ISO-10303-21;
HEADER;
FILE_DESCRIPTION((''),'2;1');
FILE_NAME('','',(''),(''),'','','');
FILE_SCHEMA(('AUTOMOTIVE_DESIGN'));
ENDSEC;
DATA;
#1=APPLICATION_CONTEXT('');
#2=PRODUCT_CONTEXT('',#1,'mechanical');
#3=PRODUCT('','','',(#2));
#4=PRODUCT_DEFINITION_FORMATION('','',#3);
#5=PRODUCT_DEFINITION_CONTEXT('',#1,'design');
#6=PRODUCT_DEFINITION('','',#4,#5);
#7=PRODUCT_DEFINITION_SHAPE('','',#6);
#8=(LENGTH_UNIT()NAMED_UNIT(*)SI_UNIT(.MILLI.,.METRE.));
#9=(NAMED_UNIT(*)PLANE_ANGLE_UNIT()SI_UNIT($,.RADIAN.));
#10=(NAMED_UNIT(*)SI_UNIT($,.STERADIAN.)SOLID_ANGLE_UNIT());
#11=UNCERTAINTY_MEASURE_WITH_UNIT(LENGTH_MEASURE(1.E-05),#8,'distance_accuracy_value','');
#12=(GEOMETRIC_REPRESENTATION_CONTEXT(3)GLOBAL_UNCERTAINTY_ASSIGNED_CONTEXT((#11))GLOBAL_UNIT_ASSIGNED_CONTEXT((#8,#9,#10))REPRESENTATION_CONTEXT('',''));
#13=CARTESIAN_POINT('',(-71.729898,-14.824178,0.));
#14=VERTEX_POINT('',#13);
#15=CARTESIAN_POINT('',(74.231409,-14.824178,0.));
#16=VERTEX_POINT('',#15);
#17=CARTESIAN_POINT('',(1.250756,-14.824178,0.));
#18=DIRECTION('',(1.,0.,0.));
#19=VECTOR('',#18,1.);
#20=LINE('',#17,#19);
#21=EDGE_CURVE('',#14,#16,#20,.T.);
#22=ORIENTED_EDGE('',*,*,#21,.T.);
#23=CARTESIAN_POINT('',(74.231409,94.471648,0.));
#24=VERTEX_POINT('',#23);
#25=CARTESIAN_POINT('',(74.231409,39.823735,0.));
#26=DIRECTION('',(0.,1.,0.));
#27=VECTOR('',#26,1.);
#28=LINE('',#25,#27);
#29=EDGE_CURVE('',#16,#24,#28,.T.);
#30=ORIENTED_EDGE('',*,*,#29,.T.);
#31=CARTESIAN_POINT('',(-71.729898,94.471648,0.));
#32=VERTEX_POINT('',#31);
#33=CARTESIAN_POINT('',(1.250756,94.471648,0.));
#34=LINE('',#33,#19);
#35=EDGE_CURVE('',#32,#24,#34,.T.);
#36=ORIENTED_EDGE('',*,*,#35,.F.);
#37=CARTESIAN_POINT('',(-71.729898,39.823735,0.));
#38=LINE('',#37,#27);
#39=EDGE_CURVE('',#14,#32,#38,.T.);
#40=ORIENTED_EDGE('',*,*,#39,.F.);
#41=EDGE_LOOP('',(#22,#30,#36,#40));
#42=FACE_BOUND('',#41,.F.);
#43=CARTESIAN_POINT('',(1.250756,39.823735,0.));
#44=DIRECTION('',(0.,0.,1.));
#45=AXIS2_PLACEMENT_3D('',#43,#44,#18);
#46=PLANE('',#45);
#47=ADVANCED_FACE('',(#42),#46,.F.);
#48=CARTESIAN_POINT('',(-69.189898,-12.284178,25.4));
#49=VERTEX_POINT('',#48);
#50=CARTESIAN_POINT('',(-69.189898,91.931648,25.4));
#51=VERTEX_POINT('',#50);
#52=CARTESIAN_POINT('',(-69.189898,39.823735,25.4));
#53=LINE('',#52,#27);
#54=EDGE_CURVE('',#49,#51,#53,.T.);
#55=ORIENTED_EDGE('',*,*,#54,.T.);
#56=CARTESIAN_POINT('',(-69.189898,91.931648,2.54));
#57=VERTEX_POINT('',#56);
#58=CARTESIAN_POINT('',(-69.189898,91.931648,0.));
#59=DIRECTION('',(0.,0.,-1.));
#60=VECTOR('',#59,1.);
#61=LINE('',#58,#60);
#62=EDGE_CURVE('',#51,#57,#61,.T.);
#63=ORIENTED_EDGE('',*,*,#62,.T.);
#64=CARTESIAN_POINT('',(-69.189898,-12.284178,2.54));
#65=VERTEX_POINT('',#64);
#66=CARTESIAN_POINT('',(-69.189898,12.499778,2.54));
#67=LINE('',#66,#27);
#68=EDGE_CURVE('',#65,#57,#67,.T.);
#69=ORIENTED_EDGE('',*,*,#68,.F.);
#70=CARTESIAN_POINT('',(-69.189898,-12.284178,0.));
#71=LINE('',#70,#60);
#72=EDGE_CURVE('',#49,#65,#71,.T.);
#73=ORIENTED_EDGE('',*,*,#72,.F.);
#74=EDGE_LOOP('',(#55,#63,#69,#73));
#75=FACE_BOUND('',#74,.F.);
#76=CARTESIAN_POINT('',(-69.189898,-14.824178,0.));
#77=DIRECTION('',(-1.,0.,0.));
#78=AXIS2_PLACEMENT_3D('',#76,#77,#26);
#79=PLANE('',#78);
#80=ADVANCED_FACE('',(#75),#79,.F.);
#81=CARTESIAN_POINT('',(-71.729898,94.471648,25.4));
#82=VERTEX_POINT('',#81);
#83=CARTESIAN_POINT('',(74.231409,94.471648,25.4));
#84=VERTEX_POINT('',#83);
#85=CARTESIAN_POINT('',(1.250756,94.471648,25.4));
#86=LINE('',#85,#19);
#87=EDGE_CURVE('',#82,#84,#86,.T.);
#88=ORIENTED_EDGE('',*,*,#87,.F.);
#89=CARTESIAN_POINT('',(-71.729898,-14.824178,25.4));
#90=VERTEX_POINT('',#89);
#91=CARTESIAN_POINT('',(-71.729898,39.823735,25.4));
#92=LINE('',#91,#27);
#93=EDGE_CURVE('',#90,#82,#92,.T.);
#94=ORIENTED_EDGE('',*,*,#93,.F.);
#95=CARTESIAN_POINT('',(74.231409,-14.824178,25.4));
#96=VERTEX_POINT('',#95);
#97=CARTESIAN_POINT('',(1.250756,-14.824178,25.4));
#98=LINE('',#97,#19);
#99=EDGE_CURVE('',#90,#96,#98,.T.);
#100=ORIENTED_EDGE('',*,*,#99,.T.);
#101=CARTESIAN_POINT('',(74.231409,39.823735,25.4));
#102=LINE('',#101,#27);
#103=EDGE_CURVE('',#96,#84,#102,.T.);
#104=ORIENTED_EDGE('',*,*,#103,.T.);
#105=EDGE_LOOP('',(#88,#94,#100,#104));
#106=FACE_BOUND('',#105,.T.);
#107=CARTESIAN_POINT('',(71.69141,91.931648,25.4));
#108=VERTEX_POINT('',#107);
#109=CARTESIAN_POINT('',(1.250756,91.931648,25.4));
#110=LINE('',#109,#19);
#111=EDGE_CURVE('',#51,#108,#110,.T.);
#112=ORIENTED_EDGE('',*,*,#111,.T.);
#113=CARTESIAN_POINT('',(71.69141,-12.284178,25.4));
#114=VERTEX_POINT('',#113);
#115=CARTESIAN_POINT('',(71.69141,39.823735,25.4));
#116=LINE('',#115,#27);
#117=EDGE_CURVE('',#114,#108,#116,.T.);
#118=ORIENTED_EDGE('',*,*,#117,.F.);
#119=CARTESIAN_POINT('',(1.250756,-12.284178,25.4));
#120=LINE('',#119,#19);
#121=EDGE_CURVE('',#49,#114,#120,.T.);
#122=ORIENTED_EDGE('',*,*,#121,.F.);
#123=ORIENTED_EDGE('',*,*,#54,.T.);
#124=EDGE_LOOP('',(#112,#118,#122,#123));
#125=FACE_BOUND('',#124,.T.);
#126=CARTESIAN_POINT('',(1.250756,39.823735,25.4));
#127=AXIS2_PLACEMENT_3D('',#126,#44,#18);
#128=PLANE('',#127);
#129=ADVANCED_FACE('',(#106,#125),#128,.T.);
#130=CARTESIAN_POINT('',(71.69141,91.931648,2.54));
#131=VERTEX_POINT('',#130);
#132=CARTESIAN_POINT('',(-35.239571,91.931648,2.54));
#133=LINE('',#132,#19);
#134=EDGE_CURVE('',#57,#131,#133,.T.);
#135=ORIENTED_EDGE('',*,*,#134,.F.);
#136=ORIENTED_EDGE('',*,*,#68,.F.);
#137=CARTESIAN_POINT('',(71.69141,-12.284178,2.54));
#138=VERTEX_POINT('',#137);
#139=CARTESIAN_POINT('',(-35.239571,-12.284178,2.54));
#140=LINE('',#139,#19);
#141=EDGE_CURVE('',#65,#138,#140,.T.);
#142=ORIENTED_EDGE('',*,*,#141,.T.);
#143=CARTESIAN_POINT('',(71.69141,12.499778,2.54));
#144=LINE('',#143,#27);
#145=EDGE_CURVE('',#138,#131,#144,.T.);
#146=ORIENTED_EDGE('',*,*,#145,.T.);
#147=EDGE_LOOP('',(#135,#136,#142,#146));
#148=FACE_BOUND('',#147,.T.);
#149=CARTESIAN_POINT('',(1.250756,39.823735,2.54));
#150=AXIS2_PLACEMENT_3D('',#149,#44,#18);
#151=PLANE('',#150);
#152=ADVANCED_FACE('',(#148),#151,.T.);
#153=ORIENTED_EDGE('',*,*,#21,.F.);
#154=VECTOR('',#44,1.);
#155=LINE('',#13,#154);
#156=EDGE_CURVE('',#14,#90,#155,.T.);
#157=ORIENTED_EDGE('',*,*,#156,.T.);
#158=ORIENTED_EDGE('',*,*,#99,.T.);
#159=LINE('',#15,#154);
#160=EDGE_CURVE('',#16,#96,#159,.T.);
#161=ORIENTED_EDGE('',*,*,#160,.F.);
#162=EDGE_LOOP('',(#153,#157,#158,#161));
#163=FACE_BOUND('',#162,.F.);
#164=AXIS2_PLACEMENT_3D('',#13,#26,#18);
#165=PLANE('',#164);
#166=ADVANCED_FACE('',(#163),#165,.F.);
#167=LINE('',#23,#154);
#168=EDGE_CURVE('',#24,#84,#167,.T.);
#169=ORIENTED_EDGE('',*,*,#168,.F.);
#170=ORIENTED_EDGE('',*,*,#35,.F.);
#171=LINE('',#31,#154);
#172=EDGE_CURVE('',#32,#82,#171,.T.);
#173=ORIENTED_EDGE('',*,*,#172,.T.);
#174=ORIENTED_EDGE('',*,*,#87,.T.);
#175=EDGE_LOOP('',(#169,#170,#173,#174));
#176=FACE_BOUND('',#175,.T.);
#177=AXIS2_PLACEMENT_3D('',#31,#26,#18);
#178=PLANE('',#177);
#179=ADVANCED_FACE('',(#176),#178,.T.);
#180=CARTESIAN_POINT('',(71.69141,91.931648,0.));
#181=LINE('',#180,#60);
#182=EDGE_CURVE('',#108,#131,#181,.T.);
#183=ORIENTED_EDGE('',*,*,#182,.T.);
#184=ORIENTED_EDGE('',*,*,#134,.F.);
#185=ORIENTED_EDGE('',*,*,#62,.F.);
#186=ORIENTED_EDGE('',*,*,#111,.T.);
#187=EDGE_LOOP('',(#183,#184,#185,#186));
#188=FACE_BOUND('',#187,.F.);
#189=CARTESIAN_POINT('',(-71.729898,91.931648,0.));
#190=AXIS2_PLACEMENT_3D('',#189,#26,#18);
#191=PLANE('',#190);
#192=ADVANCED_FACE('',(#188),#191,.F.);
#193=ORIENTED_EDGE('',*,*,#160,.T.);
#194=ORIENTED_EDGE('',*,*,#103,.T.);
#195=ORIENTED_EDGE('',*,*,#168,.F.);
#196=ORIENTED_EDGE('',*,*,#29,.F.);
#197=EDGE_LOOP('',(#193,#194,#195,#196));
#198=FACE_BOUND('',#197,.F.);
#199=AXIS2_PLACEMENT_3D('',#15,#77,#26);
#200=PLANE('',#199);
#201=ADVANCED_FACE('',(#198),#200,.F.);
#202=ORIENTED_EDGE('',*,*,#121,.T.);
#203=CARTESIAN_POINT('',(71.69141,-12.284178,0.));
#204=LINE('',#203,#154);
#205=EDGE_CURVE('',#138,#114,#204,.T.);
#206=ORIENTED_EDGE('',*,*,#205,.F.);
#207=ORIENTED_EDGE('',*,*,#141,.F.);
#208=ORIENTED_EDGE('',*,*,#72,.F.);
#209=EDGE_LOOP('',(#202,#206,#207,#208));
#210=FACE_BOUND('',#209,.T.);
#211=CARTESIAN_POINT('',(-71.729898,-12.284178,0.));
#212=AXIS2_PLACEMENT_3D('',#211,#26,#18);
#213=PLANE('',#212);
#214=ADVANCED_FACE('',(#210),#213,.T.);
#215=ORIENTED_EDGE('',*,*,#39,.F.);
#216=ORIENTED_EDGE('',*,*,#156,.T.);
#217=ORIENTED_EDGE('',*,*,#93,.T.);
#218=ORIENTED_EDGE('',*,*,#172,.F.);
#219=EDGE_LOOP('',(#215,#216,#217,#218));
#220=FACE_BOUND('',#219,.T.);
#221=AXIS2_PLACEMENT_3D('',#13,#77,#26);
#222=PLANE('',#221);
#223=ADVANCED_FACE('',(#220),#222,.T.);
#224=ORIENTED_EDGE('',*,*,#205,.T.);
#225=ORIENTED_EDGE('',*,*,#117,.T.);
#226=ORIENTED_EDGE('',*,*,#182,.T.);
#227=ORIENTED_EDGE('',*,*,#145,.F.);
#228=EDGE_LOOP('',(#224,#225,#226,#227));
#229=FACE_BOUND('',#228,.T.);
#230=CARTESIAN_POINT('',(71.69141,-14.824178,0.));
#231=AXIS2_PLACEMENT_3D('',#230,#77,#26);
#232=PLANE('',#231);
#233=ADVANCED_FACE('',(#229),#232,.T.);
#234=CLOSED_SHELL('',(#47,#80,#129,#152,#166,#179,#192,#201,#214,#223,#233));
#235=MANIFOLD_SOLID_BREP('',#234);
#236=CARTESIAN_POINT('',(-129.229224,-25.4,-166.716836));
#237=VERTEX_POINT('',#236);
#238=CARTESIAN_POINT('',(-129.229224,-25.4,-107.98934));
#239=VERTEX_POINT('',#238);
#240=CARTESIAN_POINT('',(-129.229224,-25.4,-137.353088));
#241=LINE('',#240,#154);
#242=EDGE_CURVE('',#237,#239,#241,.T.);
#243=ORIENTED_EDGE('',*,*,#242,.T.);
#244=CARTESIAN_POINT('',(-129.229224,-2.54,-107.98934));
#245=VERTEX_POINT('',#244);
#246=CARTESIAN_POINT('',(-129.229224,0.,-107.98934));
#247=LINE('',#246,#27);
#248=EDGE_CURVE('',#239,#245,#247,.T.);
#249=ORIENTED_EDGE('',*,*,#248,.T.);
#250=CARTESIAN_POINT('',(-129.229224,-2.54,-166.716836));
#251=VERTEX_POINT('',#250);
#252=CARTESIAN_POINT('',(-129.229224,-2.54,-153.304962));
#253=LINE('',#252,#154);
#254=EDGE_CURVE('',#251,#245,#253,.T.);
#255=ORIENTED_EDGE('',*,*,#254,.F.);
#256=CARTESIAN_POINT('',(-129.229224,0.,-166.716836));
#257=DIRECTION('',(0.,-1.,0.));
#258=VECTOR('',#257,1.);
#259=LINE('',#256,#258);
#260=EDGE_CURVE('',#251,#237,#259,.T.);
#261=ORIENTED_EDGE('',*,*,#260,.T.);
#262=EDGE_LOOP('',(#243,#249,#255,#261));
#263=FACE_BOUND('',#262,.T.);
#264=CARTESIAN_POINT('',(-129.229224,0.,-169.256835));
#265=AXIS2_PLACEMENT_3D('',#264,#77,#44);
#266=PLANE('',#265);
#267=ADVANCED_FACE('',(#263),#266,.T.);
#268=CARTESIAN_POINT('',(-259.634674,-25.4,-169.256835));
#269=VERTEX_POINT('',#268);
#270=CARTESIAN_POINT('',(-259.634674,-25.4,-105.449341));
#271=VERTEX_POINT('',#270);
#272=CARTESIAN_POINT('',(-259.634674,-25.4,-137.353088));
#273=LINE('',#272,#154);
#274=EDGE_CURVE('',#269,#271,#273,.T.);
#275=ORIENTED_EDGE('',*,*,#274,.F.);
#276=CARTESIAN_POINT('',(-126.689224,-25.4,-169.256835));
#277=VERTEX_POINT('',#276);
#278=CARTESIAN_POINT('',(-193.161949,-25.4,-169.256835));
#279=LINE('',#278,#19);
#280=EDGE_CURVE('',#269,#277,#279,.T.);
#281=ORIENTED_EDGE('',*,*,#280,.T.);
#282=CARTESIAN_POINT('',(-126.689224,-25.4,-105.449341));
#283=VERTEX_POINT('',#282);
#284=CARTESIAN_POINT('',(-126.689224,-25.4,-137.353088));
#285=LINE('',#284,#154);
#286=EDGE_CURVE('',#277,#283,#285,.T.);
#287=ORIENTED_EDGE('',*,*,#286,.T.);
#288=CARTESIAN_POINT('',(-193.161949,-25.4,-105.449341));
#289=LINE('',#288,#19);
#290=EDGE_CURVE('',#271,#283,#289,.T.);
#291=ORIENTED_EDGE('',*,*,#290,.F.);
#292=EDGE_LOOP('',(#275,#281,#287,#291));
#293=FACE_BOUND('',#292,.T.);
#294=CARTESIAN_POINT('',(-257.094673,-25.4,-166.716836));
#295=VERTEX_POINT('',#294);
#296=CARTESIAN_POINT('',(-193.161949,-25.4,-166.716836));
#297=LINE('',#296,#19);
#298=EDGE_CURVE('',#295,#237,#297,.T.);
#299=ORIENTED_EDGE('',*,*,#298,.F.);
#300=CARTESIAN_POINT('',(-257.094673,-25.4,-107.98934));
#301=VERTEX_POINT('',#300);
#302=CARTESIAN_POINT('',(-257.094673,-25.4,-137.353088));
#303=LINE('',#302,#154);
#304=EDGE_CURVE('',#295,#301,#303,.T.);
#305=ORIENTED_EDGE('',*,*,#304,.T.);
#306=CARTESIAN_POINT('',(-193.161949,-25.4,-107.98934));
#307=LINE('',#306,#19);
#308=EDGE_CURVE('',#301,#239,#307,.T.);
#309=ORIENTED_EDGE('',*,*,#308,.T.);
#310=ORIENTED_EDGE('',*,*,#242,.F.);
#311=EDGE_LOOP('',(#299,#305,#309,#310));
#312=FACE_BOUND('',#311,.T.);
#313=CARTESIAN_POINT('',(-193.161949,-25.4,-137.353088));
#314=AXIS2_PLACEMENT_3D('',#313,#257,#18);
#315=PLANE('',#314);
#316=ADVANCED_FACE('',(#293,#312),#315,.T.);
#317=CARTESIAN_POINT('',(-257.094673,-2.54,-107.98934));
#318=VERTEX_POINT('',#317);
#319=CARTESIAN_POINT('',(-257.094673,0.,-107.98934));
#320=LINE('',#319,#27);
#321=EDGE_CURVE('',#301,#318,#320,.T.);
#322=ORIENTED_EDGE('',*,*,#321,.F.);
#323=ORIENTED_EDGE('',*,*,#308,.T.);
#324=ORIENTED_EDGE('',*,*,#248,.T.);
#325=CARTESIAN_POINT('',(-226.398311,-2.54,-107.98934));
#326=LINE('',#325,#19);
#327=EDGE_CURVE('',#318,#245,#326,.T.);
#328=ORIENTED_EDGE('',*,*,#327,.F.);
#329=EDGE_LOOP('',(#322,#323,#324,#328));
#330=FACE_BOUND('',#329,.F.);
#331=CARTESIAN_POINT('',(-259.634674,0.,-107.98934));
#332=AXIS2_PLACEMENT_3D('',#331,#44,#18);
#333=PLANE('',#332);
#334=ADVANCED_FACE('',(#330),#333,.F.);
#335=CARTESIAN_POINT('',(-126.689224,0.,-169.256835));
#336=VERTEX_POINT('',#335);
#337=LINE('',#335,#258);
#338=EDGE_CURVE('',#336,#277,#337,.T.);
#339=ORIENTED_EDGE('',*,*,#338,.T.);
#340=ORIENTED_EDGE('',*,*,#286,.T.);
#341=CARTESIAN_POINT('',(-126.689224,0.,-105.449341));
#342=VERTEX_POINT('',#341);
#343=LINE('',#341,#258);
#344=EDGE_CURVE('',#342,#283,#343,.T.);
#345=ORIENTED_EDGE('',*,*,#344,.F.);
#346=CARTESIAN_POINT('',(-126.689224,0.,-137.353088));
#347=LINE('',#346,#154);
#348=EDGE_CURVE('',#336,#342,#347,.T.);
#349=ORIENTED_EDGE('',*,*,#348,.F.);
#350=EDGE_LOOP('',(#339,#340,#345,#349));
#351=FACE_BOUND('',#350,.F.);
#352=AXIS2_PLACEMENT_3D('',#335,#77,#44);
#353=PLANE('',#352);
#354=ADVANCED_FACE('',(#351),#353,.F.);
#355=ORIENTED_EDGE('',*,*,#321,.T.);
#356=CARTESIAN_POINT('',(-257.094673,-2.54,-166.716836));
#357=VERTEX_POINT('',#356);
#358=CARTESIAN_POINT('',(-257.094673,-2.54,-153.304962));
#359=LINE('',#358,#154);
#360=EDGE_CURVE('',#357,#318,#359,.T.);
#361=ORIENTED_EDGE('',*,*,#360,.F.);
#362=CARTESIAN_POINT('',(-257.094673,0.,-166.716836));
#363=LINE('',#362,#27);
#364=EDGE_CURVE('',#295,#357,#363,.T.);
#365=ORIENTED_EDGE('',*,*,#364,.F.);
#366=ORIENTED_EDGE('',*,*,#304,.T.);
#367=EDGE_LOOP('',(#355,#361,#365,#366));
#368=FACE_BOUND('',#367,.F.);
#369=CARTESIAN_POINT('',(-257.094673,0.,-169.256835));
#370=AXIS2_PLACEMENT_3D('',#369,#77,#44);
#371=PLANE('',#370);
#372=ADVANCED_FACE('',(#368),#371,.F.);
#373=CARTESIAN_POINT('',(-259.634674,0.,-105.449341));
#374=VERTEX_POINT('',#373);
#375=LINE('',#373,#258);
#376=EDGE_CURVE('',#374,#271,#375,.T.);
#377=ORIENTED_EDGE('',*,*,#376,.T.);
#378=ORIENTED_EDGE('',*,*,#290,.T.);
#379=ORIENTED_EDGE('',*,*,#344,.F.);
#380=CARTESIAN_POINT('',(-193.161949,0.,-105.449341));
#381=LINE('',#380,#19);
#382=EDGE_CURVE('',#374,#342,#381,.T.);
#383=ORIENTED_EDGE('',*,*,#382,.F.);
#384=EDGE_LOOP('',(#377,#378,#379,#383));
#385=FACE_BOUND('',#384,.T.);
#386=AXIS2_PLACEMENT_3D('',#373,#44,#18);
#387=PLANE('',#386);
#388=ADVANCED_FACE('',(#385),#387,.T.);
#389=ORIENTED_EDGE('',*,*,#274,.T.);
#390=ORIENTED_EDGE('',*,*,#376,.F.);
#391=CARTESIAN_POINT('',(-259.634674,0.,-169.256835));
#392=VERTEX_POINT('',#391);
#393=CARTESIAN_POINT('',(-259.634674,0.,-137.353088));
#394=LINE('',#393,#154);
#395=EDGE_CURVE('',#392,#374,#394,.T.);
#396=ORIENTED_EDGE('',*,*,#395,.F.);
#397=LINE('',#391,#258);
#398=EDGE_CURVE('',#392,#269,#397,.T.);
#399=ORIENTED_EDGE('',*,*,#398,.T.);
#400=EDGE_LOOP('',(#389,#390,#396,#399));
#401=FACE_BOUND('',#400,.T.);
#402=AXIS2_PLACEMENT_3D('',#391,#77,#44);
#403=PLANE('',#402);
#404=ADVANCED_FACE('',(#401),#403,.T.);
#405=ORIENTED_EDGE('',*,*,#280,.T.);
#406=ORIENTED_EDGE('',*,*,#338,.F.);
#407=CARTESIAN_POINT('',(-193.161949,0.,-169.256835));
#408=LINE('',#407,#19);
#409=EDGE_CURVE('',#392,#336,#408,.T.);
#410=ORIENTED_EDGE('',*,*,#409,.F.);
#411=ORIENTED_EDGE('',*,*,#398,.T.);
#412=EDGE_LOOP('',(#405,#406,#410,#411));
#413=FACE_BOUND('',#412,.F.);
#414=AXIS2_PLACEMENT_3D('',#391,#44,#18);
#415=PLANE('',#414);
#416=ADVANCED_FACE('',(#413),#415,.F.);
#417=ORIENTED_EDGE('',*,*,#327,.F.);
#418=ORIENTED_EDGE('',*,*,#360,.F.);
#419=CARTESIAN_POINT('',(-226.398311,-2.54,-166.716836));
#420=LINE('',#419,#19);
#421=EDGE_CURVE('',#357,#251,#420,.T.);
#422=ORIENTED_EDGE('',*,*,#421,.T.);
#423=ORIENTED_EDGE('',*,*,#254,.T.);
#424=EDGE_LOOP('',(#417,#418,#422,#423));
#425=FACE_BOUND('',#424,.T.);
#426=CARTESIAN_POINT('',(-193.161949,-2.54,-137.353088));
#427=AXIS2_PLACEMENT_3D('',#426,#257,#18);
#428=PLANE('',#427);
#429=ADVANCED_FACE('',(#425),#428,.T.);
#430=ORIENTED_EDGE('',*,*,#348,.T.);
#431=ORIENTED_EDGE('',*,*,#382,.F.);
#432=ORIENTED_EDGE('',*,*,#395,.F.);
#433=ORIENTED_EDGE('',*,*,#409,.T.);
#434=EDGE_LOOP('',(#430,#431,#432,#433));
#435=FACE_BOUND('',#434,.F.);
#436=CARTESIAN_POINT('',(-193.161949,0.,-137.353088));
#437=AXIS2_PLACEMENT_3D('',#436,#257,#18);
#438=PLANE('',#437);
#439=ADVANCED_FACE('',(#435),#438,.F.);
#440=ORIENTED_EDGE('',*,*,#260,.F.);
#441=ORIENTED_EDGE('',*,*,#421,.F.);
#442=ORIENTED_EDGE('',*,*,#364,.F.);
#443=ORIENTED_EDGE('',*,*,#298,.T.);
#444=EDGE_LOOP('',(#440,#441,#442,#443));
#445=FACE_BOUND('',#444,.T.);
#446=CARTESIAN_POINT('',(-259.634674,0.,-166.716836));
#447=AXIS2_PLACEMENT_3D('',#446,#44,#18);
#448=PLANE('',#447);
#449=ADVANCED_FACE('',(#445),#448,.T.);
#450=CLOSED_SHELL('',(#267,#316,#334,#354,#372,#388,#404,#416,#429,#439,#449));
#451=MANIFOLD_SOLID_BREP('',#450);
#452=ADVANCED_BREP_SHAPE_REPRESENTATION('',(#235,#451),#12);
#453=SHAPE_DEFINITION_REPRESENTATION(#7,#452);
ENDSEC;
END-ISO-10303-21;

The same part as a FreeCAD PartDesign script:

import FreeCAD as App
import Part
import Sketcher
Q = App.Units.Quantity


def faces_at(feature, points):
    """Names of the faces that lie closest to the given points."""
    faces = feature.Shape.Faces
    near = lambda p: min(range(len(faces)), key=lambda i: faces[i].distToShape(Part.Vertex(*p))[0])
    return sorted({f"Face{near(p) + 1}" for p in points})

doc = App.newDocument("Part")
body = doc.addObject("PartDesign::Body", "Body")

# Sketch on XY plane
sketch1 = doc.addObject("Sketcher::SketchObject", "Sketch")
body.addObject(sketch1)
sketch1.AttachmentSupport = (doc.XY_Plane, [""])
sketch1.MapMode = "FlatFace"
sketch1.addGeometry([
    Part.LineSegment(App.Vector(-72, 94, 0), App.Vector(-72, -15, 0)),
    Part.LineSegment(App.Vector(-72, -15, 0), App.Vector(74, -15, 0)),
    Part.LineSegment(App.Vector(74, -15, 0), App.Vector(74, 94, 0)),
    Part.LineSegment(App.Vector(74, 94, 0), App.Vector(-72, 94, 0)),
], False)
sketch1.addConstraint([
    Sketcher.Constraint("Coincident", 0, 2, 1, 1),
    Sketcher.Constraint("Coincident", 1, 2, 2, 1),
    Sketcher.Constraint("Coincident", 2, 2, 3, 1),
    Sketcher.Constraint("Coincident", 3, 2, 0, 1),
    Sketcher.Constraint("Vertical", 0),
    Sketcher.Constraint("Horizontal", 1),
    Sketcher.Constraint("Vertical", 2),
    Sketcher.Constraint("Horizontal", 3),
    Sketcher.Constraint("DistanceX", 1, 1, 1, 2, 145.961307),
    Sketcher.Constraint("DistanceY", 0, 2, 0, 1, 109.295826),
    Sketcher.Constraint("DistanceX", -1, 1, 1, 2, 74.231409),
    Sketcher.Constraint("DistanceY", -1, 1, 2, 2, 94.471648),
])
pad1 = doc.addObject("PartDesign::Pad", "Pad")
body.addObject(pad1)
pad1.Profile = sketch1
pad1.Length = Q("1 in")
doc.recompute()

thickness = doc.addObject("PartDesign::Thickness", "Thickness")
body.addObject(thickness)
thickness.Base = (pad1, faces_at(pad1, [(1.251, 39.824, 25.4)]))
thickness.Value = Q("0.1 in")
thickness.Reversed = True
thickness.Join = "Arc"
body2 = doc.addObject("PartDesign::Body", "Body001")

# Sketch on XZ plane
sketch2 = doc.addObject("Sketcher::SketchObject", "Sketch001")
body2.addObject(sketch2)
sketch2.AttachmentSupport = (doc.getObject("XZ_Plane001"), [""])
sketch2.MapMode = "FlatFace"
sketch2.addGeometry([
    Part.LineSegment(App.Vector(-260, -105, 0), App.Vector(-260, -169, 0)),
    Part.LineSegment(App.Vector(-260, -169, 0), App.Vector(-127, -169, 0)),
    Part.LineSegment(App.Vector(-127, -169, 0), App.Vector(-127, -105, 0)),
    Part.LineSegment(App.Vector(-127, -105, 0), App.Vector(-260, -105, 0)),
], False)
sketch2.addConstraint([
    Sketcher.Constraint("Coincident", 0, 2, 1, 1),
    Sketcher.Constraint("Coincident", 1, 2, 2, 1),
    Sketcher.Constraint("Coincident", 2, 2, 3, 1),
    Sketcher.Constraint("Coincident", 3, 2, 0, 1),
    Sketcher.Constraint("Vertical", 0),
    Sketcher.Constraint("Horizontal", 1),
    Sketcher.Constraint("Vertical", 2),
    Sketcher.Constraint("Horizontal", 3),
    Sketcher.Constraint("DistanceX", 1, 1, 1, 2, 132.945449),
    Sketcher.Constraint("DistanceY", 0, 2, 0, 1, 63.807495),
    Sketcher.Constraint("DistanceY", 2, 2, -1, 1, 105.449341),
    Sketcher.Constraint("DistanceX", 0, 2, -1, 1, 259.634674),
])
pad2 = doc.addObject("PartDesign::Pad", "Pad001")
body2.addObject(pad2)
pad2.Profile = sketch2
pad2.Length = Q("1 in")
doc.recompute()

thickness2 = doc.addObject("PartDesign::Thickness", "Thickness001")
body2.addObject(thickness2)
thickness2.Base = (pad2, faces_at(pad2, [(-193.162, -25.4, -137.353)]))
thickness2.Value = Q("0.1 in")
thickness2.Reversed = True
thickness2.Join = "Arc"

doc.recompute()
